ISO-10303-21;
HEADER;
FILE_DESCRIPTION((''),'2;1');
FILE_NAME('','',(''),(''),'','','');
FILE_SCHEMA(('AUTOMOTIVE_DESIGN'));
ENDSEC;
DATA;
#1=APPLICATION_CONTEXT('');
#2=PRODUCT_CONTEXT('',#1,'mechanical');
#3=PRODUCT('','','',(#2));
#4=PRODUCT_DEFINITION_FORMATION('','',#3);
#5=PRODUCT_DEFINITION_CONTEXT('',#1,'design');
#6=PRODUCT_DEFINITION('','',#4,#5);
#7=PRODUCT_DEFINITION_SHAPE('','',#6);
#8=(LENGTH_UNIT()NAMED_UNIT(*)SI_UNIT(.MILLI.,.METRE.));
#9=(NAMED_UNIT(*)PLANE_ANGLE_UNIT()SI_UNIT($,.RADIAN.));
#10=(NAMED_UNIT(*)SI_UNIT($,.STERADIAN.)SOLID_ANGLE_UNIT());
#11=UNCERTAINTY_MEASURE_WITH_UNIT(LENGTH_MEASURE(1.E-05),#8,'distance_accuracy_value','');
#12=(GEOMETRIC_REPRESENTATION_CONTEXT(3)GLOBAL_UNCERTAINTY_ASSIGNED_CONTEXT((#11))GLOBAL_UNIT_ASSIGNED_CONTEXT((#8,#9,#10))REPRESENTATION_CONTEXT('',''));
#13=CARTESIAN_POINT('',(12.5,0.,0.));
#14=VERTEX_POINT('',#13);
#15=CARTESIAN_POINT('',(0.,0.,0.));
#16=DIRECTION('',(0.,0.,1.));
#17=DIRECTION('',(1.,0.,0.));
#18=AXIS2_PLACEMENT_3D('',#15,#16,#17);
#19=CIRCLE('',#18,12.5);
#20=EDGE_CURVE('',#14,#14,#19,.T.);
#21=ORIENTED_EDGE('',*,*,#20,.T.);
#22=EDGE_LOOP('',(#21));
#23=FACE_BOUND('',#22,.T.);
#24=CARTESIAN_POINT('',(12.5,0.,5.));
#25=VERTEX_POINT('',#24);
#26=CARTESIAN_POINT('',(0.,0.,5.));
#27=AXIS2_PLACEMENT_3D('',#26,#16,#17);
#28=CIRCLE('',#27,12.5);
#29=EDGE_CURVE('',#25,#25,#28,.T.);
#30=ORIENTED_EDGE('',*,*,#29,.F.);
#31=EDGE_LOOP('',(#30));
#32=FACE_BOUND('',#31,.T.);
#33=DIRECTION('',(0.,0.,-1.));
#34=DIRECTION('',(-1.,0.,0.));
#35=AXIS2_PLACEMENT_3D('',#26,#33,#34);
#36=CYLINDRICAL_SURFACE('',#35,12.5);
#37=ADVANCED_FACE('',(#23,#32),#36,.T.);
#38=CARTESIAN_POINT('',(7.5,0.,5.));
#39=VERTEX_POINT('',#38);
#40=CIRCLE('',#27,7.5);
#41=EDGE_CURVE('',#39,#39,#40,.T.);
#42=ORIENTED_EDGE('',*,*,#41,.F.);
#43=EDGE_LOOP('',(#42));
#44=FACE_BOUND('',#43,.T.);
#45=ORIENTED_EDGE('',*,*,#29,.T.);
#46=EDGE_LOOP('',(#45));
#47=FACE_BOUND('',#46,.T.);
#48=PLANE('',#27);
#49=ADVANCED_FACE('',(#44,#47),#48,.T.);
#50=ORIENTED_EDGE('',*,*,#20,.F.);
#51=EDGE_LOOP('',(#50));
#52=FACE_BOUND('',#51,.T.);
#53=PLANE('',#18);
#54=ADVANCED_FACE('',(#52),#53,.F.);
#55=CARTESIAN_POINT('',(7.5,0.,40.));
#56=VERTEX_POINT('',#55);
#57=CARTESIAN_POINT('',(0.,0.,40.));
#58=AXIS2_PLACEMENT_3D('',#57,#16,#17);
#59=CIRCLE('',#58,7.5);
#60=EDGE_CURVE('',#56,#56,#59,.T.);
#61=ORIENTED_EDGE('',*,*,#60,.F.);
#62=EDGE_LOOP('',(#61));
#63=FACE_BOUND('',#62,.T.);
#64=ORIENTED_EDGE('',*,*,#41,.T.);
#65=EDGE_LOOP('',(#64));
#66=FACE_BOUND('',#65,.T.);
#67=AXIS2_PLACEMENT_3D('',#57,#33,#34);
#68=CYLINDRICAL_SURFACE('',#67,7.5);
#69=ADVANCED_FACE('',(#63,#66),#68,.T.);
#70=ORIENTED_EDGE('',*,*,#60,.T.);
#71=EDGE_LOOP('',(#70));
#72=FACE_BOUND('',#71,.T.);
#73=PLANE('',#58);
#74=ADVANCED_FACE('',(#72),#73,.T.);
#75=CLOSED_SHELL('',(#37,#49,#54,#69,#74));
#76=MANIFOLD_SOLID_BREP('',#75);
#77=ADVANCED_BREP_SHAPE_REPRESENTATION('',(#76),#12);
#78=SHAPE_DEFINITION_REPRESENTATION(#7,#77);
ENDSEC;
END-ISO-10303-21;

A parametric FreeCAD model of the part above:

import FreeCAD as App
import Part
import Sketcher

doc = App.newDocument("Part")
body = doc.addObject("PartDesign::Body", "Body")

sketch1 = body.newObject("Sketcher::SketchObject", "Sketch")
sketch1.AttachmentSupport = (doc.getObject("XY_Plane"), [""])
sketch1.MapMode = "FlatFace"
sketch1.addGeometry([
    Part.Circle(App.Vector(0, 0, 0), App.Vector(0, 0, 1), 12),
    Part.Circle(App.Vector(0, 0, 0), App.Vector(0, 0, 1), 8),
], False)
sketch1.addConstraint([
    Sketcher.Constraint("Coincident", 0, 3, -1, 1),
    Sketcher.Constraint("Coincident", 1, 3, -1, 1),
    Sketcher.Constraint("Diameter", 0, 25.0),
    Sketcher.Constraint("Diameter", 1, 15.0),
])
pad1 = body.newObject("PartDesign::Pad", "Pad")
pad1.Profile = sketch1
pad1.Length = 5

sketch2 = body.newObject("Sketcher::SketchObject", "Sketch001")
sketch2.AttachmentSupport = (doc.getObject("XY_Plane"), [""])
sketch2.MapMode = "FlatFace"
sketch2.addGeometry(Part.Circle(App.Vector(0, 0, 0), App.Vector(0, 0, 1), 8), False)
sketch2.addConstraint([
    Sketcher.Constraint("Coincident", 0, 3, -1, 1),
    Sketcher.Constraint("Diameter", 0, 15.0),
])
pad2 = body.newObject("PartDesign::Pad", "Pad001")
pad2.Profile = sketch2
pad2.Length = 40

doc.recompute()
